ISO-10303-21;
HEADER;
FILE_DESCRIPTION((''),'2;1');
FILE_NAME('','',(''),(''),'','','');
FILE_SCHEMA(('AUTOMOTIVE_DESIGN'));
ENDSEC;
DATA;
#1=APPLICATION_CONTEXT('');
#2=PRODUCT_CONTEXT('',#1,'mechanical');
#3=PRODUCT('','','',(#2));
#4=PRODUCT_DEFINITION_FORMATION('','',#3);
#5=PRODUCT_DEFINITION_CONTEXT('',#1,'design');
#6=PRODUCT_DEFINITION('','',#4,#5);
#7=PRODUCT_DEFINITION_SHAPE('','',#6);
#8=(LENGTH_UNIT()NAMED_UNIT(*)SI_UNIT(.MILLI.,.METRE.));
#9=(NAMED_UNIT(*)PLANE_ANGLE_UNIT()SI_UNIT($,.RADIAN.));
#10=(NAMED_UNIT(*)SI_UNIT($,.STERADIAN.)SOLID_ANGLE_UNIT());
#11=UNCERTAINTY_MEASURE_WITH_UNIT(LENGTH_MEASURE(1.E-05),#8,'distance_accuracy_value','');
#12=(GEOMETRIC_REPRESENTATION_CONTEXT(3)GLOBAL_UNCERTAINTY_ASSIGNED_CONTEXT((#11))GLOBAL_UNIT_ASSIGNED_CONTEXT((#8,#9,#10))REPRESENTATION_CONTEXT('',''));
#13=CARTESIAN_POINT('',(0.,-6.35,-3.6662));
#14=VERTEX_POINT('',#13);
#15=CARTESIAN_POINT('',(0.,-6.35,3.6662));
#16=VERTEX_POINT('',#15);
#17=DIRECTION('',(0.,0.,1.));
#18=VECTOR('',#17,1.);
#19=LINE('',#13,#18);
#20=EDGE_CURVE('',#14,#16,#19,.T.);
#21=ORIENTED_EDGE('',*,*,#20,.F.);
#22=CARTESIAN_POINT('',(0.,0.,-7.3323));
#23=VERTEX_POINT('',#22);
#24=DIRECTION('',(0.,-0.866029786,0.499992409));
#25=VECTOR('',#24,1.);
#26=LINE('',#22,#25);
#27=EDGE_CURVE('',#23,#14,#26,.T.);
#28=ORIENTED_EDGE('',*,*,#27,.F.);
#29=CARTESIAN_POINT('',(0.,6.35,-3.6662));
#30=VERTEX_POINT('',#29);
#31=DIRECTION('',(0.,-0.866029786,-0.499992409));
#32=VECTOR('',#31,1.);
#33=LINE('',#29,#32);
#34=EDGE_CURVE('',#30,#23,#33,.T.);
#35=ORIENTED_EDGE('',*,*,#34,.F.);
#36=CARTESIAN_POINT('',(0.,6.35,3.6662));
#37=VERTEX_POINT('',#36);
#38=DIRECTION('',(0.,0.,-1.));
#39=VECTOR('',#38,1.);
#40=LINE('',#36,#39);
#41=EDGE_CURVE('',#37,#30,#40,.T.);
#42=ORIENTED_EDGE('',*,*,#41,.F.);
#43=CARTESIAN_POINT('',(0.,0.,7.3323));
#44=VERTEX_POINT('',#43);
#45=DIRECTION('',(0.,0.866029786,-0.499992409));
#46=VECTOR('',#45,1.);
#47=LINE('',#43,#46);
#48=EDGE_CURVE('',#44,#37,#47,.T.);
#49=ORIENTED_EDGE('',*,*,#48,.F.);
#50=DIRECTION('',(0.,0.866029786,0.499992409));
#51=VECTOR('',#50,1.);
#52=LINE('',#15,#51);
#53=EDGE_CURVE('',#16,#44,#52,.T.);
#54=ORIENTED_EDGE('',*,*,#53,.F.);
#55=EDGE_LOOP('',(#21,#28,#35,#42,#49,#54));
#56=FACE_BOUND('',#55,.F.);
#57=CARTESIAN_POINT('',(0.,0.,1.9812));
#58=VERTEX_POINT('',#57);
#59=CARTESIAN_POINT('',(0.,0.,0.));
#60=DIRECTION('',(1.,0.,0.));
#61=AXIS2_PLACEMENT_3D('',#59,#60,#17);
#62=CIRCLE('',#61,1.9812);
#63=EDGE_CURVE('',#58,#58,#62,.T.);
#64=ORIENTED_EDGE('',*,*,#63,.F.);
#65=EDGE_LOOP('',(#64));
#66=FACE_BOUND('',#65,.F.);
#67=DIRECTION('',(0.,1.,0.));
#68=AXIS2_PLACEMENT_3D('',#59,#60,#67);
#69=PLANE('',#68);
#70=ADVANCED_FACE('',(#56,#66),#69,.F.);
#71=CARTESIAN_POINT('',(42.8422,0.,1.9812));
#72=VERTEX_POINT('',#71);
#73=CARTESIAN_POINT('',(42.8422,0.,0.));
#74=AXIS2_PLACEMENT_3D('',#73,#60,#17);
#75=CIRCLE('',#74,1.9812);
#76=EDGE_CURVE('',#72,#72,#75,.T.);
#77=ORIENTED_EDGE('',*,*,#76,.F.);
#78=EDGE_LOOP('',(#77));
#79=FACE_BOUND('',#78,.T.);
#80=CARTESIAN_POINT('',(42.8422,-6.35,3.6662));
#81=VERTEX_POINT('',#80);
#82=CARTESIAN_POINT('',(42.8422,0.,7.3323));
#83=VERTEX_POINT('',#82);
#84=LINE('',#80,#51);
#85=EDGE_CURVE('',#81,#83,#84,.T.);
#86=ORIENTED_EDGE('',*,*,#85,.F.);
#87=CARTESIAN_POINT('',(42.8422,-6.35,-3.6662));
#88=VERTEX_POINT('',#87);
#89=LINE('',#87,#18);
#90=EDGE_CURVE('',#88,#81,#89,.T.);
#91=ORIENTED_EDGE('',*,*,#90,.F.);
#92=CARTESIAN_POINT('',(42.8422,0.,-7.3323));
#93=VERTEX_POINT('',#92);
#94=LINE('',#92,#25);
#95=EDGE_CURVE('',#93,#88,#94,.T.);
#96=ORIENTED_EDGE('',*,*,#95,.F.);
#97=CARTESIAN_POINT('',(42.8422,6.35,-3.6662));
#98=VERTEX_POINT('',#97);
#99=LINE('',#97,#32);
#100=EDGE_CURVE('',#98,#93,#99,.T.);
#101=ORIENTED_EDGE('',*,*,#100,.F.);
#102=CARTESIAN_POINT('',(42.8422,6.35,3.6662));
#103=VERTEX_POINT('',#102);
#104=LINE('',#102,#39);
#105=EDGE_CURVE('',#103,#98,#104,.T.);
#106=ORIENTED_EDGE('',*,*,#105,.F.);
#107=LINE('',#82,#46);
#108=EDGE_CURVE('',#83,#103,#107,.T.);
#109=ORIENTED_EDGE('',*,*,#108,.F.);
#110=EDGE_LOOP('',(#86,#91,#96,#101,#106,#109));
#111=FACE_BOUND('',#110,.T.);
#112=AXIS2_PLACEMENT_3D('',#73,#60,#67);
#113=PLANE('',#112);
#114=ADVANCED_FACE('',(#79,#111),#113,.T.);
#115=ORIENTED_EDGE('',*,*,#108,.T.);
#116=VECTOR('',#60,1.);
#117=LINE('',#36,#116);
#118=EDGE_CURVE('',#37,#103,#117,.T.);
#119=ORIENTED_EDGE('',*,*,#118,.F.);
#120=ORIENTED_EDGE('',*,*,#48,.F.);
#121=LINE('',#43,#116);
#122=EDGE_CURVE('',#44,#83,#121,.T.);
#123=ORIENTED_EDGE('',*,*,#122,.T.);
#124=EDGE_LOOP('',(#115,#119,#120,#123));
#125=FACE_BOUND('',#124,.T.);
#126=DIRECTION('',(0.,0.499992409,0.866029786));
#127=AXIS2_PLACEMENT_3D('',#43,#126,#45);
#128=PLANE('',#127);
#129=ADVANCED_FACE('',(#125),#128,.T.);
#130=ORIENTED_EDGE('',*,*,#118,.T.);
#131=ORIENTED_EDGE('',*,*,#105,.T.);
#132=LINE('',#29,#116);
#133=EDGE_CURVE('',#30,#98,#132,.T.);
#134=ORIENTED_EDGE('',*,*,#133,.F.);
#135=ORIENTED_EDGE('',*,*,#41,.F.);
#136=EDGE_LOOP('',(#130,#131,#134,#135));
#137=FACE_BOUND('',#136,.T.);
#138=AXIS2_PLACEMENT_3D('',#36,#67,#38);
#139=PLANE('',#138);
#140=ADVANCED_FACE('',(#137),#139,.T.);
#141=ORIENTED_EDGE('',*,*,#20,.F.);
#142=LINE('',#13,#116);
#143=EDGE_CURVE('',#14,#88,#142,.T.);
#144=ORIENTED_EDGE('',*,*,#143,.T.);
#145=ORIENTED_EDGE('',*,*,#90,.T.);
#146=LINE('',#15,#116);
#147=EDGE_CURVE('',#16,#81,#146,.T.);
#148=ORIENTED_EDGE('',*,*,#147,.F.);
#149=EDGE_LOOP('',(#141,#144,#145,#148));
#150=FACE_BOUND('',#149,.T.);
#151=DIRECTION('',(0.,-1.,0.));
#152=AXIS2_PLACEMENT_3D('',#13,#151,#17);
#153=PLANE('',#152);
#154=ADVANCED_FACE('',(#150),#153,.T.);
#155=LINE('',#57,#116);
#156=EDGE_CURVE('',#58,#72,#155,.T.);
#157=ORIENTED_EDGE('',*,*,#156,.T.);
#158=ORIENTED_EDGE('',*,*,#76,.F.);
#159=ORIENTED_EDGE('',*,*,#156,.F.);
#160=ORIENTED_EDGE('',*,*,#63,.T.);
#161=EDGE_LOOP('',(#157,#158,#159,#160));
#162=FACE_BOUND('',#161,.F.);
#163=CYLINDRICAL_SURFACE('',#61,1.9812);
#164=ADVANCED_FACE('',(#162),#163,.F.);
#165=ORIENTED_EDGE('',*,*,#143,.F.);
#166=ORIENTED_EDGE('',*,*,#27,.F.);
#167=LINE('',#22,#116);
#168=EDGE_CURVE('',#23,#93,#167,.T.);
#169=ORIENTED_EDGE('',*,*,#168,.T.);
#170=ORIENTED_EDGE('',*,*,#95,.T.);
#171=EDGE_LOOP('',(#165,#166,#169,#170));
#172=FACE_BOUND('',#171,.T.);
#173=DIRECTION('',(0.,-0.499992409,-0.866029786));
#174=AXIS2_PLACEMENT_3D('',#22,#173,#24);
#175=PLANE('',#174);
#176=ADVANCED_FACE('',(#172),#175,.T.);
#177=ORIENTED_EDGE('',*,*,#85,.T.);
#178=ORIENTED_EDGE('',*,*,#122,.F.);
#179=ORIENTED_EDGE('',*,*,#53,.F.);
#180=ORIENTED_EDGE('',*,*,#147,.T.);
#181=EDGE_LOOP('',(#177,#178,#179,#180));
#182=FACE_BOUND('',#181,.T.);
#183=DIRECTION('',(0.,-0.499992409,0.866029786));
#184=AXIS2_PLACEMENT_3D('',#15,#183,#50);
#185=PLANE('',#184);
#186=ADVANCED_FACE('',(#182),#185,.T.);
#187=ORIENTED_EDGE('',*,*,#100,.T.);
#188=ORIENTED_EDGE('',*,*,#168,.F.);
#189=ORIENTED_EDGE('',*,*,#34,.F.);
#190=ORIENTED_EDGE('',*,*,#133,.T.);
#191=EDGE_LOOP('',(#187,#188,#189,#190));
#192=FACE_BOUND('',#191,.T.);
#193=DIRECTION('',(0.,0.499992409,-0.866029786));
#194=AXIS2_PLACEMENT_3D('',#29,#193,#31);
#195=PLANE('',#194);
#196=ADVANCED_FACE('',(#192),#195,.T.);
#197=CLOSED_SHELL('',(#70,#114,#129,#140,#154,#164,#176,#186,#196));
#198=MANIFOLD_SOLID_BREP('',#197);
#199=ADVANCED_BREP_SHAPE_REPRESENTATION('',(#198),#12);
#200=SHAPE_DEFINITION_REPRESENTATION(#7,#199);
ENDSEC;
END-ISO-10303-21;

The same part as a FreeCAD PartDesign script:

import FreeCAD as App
import Part
import Sketcher
Q = App.Units.Quantity


def add_polygon(sketch, points):
    """Adds a closed chain of lines whose ends are joined by coincident constraints."""
    first, n = sketch.GeometryCount, len(points)
    for a, b in zip(points, points[1:] + points[:1]):
        sketch.addGeometry(Part.LineSegment(App.Vector(*a, 0), App.Vector(*b, 0)), False)
    for i in range(n):
        sketch.addConstraint(Sketcher.Constraint("Coincident", first + i, 2, first + (i + 1) % n, 1))

doc = App.newDocument("Part")
params = doc.addObject("Spreadsheet::Sheet", "Params")
for row, (alias, value) in enumerate([
    ("pad1_length", "1.6867008 in"),
    ("sketch2_diameter", "0.156 in"),
    ("hole_diameter", "0.156 in"),
], start=1):
    params.set(f"A{row}", alias)
    params.set(f"B{row}", "=" + value)
    params.setAlias(f"B{row}", alias)

body = doc.addObject("PartDesign::Body", "Body")

# Sketch on YZ plane
sketch1 = body.newObject("Sketcher::SketchObject", "Sketch")
sketch1.AttachmentSupport = (doc.getObject("YZ_Plane"), [""])
sketch1.MapMode = "FlatFace"
add_polygon(sketch1, [(-6, 4), (-6, -4), (0, -7), (6, -4), (6, 4), (0, 7)])  # lines 0-5
sketch1.addConstraint([
    Sketcher.Constraint("Vertical", 0),
    Sketcher.Constraint("Vertical", 3),
    Sketcher.Constraint("Symmetric", 0, 2, 3, 2, -1, 1),
    Sketcher.Constraint("Symmetric", 1, 2, 4, 2, -1, 1),
    Sketcher.Constraint("PointOnObject", 1, 2, -2),
    Sketcher.Constraint("Parallel", 2, 5),
    Sketcher.Constraint("Horizontal", 0, 2, 2, 2),
    Sketcher.Constraint("DistanceX", 0, 2, 2, 2, Q("0.5 in")),
    Sketcher.Constraint("Angle", 1, Q("-29.9995 deg")),
    Sketcher.Constraint("DistanceY", 1, 2, 3, 2, Q("0.433 in")),
])
pad1 = body.newObject("PartDesign::Pad", "Pad")
pad1.Profile = sketch1
pad1.setExpression("Length", "Params.pad1_length")

# Sketch on YZ plane
sketch2 = body.newObject("Sketcher::SketchObject", "Sketch001")
sketch2.AttachmentSupport = (doc.getObject("YZ_Plane"), [""])
sketch2.MapMode = "FlatFace"
sketch2.addGeometry(Part.Circle(App.Vector(0, 0, 0), App.Vector(0, 0, 1), 2), False)
sketch2.addConstraint([
    Sketcher.Constraint("Coincident", 0, 3, -1, 1),
    Sketcher.Constraint("Diameter", 0, Q("0.156 in")),
])
sketch2.setExpression("Constraints[1]", "Params.sketch2_diameter")
doc.recompute()
hole = body.newObject("PartDesign::Hole", "Hole")
hole.Profile = sketch2
hole.ThreadType = "None"
hole.setExpression("Diameter", "Params.hole_diameter")
hole.DepthType = "ThroughAll"
hole.Reversed = True

doc.recompute()
